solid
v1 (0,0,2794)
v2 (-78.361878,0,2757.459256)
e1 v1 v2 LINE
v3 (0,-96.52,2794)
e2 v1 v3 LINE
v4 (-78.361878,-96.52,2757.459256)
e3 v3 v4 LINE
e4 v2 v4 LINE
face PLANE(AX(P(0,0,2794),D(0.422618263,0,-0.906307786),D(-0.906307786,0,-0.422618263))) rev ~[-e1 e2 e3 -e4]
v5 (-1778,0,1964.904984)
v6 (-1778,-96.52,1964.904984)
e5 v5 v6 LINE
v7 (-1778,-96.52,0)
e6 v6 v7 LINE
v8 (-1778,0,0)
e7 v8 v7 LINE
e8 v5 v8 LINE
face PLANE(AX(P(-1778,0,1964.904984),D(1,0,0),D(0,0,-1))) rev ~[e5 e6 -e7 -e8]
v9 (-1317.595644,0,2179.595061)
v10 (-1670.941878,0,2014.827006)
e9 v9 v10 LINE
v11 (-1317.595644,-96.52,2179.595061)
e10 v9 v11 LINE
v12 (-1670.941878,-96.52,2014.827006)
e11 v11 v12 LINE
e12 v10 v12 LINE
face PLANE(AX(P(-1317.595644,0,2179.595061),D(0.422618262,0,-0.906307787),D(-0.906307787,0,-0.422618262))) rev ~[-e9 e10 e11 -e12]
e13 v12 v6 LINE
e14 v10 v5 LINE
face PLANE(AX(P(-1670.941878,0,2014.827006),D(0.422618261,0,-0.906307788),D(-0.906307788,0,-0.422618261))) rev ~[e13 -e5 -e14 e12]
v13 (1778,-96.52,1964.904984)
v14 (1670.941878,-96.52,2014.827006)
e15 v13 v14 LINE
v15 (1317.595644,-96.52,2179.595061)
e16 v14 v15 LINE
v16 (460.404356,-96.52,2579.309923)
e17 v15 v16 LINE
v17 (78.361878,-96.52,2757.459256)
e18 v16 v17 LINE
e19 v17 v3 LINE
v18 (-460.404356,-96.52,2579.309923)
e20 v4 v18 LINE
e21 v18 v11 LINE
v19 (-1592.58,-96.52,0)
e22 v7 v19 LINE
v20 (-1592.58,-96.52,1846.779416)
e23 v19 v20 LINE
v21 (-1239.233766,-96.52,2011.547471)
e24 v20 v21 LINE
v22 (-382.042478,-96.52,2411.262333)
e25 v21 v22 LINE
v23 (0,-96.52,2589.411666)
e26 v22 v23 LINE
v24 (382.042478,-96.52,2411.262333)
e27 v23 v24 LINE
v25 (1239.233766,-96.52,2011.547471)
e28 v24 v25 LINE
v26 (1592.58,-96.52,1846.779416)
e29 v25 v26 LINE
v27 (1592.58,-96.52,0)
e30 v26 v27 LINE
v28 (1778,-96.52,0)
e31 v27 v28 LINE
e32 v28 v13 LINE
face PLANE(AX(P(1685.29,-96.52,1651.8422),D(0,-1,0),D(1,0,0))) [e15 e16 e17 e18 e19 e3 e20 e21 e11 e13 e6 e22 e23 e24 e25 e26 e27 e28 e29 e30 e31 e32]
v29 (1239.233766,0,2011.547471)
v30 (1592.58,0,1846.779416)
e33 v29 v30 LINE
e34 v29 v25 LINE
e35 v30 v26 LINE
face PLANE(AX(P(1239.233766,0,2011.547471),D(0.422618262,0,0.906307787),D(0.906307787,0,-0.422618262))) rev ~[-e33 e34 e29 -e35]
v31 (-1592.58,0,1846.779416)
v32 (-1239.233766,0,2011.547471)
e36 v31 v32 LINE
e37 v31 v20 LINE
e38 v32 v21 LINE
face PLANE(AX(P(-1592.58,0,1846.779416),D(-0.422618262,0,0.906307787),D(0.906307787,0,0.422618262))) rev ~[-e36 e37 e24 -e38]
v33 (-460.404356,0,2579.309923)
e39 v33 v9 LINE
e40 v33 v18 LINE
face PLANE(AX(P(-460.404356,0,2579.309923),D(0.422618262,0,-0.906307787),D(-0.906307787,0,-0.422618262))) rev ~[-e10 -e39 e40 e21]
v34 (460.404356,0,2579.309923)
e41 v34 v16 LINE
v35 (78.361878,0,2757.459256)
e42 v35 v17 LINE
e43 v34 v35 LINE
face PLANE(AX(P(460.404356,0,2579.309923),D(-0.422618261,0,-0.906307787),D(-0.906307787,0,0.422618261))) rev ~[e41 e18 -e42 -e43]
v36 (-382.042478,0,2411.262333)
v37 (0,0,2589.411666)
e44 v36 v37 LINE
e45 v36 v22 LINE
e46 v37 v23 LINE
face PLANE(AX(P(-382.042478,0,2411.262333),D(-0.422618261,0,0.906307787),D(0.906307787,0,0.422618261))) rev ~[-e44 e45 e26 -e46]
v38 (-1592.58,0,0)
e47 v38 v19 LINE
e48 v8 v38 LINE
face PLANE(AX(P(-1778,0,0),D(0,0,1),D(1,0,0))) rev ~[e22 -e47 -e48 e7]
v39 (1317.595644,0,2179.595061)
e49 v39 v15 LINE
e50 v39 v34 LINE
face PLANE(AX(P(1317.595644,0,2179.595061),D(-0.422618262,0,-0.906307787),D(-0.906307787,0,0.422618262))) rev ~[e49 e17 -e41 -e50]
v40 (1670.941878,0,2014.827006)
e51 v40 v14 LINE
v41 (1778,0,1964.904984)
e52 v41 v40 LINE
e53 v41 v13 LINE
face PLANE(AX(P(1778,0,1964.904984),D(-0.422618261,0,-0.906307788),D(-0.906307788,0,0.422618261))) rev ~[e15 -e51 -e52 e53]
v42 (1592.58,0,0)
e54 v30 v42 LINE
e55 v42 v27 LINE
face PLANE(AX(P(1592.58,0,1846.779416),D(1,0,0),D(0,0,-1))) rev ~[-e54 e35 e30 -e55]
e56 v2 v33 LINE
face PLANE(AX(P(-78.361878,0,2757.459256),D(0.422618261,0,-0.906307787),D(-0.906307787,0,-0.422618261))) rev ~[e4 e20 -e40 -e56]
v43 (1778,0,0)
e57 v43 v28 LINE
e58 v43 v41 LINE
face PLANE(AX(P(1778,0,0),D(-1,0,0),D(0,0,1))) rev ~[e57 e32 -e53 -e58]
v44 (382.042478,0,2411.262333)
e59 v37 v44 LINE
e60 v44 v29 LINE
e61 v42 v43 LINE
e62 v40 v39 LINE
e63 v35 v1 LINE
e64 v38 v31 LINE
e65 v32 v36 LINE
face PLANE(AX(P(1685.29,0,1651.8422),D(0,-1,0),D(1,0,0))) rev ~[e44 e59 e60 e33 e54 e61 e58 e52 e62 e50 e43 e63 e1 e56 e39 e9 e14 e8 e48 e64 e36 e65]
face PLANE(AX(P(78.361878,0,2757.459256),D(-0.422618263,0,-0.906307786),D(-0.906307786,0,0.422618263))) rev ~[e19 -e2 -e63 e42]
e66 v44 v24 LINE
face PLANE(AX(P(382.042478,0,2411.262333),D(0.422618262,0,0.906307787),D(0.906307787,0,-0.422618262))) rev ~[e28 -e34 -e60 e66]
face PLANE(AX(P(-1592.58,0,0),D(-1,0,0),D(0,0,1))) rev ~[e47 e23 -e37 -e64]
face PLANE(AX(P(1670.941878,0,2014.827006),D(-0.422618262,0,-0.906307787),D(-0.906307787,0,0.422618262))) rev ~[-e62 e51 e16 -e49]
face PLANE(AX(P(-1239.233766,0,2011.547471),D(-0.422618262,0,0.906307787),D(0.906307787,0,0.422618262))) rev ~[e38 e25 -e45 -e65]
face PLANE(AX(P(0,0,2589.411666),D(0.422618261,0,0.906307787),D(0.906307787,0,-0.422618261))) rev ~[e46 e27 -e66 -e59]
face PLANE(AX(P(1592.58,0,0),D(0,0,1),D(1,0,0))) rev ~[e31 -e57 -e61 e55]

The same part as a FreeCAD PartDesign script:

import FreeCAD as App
import Part
import Sketcher
Q = App.Units.Quantity


def add_polygon(sketch, points):
    """Adds a closed chain of lines whose ends are joined by coincident constraints."""
    first, n = sketch.GeometryCount, len(points)
    for a, b in zip(points, points[1:] + points[:1]):
        sketch.addGeometry(Part.LineSegment(App.Vector(*a, 0), App.Vector(*b, 0)), False)
    for i in range(n):
        sketch.addConstraint(Sketcher.Constraint("Coincident", first + i, 2, first + (i + 1) % n, 1))

doc = App.newDocument("Part")
body = doc.addObject("PartDesign::Body", "Body")

# Sketch on XZ plane
sketch1 = body.newObject("Sketcher::SketchObject", "Sketch")
sketch1.AttachmentSupport = (doc.getObject("XZ_Plane"), [""])
sketch1.MapMode = "FlatFace"
add_polygon(sketch1, [(1593, 1847), (1593, 0), (1778, 0), (1778, 1965), (1671, 2015), (1318, 2180), (460, 2579), (78, 2757), (0, 2794), (-78, 2757), (-460, 2579), (-1318, 2180), (-1671, 2015), (-1778, 1965), (-1778, 0), (-1593, 0), (-1593, 1847), (-1239, 2012), (-382, 2411), (0, 2589), (382, 2411), (1239, 2012)])  # lines 0-21
sketch1.addConstraint([
    Sketcher.Constraint("Vertical", 0),
    Sketcher.Constraint("Horizontal", 1),
    Sketcher.Constraint("Vertical", 2),
    Sketcher.Constraint("Vertical", 13),
    Sketcher.Constraint("Horizontal", 14),
    Sketcher.Constraint("Vertical", 15),
    Sketcher.Constraint("Symmetric", 1, 2, 13, 2, -1, 1),
    Sketcher.Constraint("Symmetric", 6, 2, 8, 2, -2),
    Sketcher.Constraint("Symmetric", 5, 2, 9, 2, -2),
    Sketcher.Constraint("Symmetric", 4, 2, 10, 2, -2),
    Sketcher.Constraint("Symmetric", 3, 2, 11, 2, -2),
    Sketcher.Constraint("Symmetric", 0, 2, 14, 2, -2),
    Sketcher.Constraint("Symmetric", 17, 2, 19, 2, -2),
    Sketcher.Constraint("Symmetric", 16, 2, 20, 2, -2),
    Sketcher.Constraint("PointOnObject", 7, 2, -2),
    Sketcher.Constraint("PointOnObject", 18, 2, -2),
    Sketcher.Constraint("Parallel", 3, 4),
    Sketcher.Constraint("Parallel", 4, 5),
    Sketcher.Constraint("Parallel", 5, 6),
    Sketcher.Constraint("Parallel", 6, 7),
    Sketcher.Constraint("Parallel", 11, 12),
    Sketcher.Constraint("Parallel", 12, 16),
    Sketcher.Constraint("Parallel", 16, 17),
    Sketcher.Constraint("Parallel", 17, 18),
    Sketcher.Constraint("Parallel", 20, 21),
    Sketcher.Constraint("Equal", 11, 16),
    Sketcher.Constraint("Equal", 10, 17),
    Sketcher.Constraint("Equal", 9, 18),
    Sketcher.Constraint("DistanceX", 1, 1, 1, 2, Q("7.3 in")),
    Sketcher.Constraint("DistanceX", -1, 1, 1, 2, Q("70 in")),
    Sketcher.Constraint("DistanceY", -1, 1, 7, 2, Q("110 in")),
    Sketcher.Constraint("Angle", 3, Q("155 deg")),
    Sketcher.Constraint("DistanceX", 9, 2, 4, 2, Q("70 in")),
    Sketcher.Constraint("DistanceY", 17, 2, 8, 2, Q("13.6298001 in")),
    Sketcher.Constraint("DistanceX", 17, 2, 8, 2, Q("303.6806 mm")),
    Sketcher.Constraint("Distance", 5, Q("945.805939 mm")),
])
pad1 = body.newObject("PartDesign::Pad", "Pad")
pad1.Profile = sketch1
pad1.Length = Q("3.8 in")

doc.recompute()
